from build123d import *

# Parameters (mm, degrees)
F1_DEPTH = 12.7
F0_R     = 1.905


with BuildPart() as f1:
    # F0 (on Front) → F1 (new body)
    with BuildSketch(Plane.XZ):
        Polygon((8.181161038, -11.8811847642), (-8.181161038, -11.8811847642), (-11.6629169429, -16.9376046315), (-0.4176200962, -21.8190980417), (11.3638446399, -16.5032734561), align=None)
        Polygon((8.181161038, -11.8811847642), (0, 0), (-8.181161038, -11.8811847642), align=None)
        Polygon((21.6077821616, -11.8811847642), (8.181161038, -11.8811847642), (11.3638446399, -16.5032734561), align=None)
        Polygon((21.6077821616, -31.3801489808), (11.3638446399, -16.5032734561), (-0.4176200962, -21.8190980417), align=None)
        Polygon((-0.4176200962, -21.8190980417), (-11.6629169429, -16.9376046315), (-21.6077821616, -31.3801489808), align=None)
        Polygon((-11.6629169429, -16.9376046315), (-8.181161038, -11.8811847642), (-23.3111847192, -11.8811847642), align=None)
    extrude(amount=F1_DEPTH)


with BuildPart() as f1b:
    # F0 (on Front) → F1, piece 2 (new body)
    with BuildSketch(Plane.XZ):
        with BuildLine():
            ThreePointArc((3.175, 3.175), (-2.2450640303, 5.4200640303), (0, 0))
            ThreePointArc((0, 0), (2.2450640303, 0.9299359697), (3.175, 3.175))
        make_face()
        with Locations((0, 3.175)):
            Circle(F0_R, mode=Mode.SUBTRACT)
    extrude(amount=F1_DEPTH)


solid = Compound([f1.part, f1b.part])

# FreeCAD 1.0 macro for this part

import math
import FreeCAD as App
import Part
import Sketcher

V = App.Vector
Q = App.Units.Quantity

doc = App.newDocument("Part")
body = doc.addObject("PartDesign::Body", "Body")

# Sketch on XZ plane
sketch1 = doc.addObject("Sketcher::SketchObject", "Sketch")
body.addObject(sketch1)
sketch1.AttachmentSupport = (doc.XZ_Plane, [""])
sketch1.MapMode = "FlatFace"
sketch1.addGeometry([
    Part.LineSegment(V(-12, -17, 0), V(-22, -31, 0)),  # 0
    Part.LineSegment(V(-22, -31, 0), V(0, -22, 0)),  # 1
    Part.LineSegment(V(0, -22, 0), V(22, -31, 0)),  # 2
    Part.LineSegment(V(22, -31, 0), V(11, -17, 0)),  # 3
    Part.LineSegment(V(11, -17, 0), V(22, -12, 0)),  # 4
    Part.LineSegment(V(22, -12, 0), V(8, -12, 0)),  # 5
    Part.LineSegment(V(8, -12, 0), V(0, 0, 0)),  # 6
    Part.LineSegment(V(0, 0, 0), V(-8, -12, 0)),  # 7
    Part.LineSegment(V(-8, -12, 0), V(-23, -12, 0)),  # 8
    Part.LineSegment(V(-23, -12, 0), V(-12, -17, 0)),  # 9
], False)
sketch1.addConstraint([
    Sketcher.Constraint("Coincident", 0, 2, 1, 1),
    Sketcher.Constraint("Coincident", 1, 2, 2, 1),
    Sketcher.Constraint("Coincident", 2, 2, 3, 1),
    Sketcher.Constraint("Coincident", 3, 2, 4, 1),
    Sketcher.Constraint("Coincident", 4, 2, 5, 1),
    Sketcher.Constraint("Coincident", 5, 2, 6, 1),
    Sketcher.Constraint("Coincident", 6, 2, 7, 1),
    Sketcher.Constraint("Coincident", 7, 2, 8, 1),
    Sketcher.Constraint("Coincident", 8, 2, 9, 1),
    Sketcher.Constraint("Coincident", 9, 2, 0, 1),
    Sketcher.Constraint("Horizontal", 5),
    Sketcher.Constraint("Horizontal", 8),
    Sketcher.Constraint("Coincident", 6, 2, -1, 1),
    Sketcher.Constraint("Symmetric", 0, 2, 2, 2, -2),
    Sketcher.Constraint("Symmetric", 5, 2, 7, 2, -2),
    Sketcher.Constraint("Parallel", 1, 4),
    Sketcher.Constraint("Parallel", 3, 6),
    Sketcher.Constraint("Parallel", 0, 7),
    Sketcher.Constraint("Parallel", 2, 9),
    Sketcher.Constraint("Vertical", 2, 2, 4, 2),
    Sketcher.Constraint("DistanceX", 0, 2, -1, 1, Q("0.8507001 in")),
    Sketcher.Constraint("DistanceX", 5, 2, 5, 1, 13.426621),
    Sketcher.Constraint("DistanceY", 1, 2, -1, 1, 21.819098),
    Sketcher.Constraint("Distance", 0, 17.53532),
    Sketcher.Constraint("Distance", 2, 24.011082),
    Sketcher.Constraint("Distance", 3, 18.06266),
    Sketcher.Constraint("Distance", 6, 14.425462),
])
pad1 = doc.addObject("PartDesign::Pad", "Pad")
body.addObject(pad1)
pad1.Profile = sketch1
pad1.Length = Q("0.5 in")
body2 = doc.addObject("PartDesign::Body", "Body001")

# Sketch on XZ plane
sketch2 = doc.addObject("Sketcher::SketchObject", "Sketch001")
body2.addObject(sketch2)
sketch2.AttachmentSupport = (doc.getObject("XZ_Plane001"), [""])
sketch2.MapMode = "FlatFace"
sketch2.addGeometry([
    Part.ArcOfCircle(Part.Circle(V(0, 3.2, 0), V(0, 0, 1), 3.2), math.radians(0), math.radians(270)),
    Part.ArcOfCircle(Part.Circle(V(0, 3.2, 0), V(0, 0, 1), 3.2), math.radians(-90), math.radians(0)),
    Part.Circle(V(0, 3.2, 0), V(0, 0, 1), 1.9),
], False)
sketch2.addConstraint([
    Sketcher.Constraint("Tangent", 0, 1, 1, 2),
    Sketcher.Constraint("Coincident", 1, 1, 0, 2),
    Sketcher.Constraint("Coincident", 1, 1, -1, 1),
    Sketcher.Constraint("Coincident", 2, 3, 0, 3),
    Sketcher.Constraint("PointOnObject", 0, 3, -2),
    Sketcher.Constraint("Horizontal", 2, 3, 0, 1),
    Sketcher.Constraint("Diameter", 2, Q("0.15 in")),
    Sketcher.Constraint("Radius", 0, Q("0.125 in")),
])
pad2 = doc.addObject("PartDesign::Pad", "Pad001")
body2.addObject(pad2)
pad2.Profile = sketch2
pad2.Length = Q("0.5 in")

doc.recompute()
